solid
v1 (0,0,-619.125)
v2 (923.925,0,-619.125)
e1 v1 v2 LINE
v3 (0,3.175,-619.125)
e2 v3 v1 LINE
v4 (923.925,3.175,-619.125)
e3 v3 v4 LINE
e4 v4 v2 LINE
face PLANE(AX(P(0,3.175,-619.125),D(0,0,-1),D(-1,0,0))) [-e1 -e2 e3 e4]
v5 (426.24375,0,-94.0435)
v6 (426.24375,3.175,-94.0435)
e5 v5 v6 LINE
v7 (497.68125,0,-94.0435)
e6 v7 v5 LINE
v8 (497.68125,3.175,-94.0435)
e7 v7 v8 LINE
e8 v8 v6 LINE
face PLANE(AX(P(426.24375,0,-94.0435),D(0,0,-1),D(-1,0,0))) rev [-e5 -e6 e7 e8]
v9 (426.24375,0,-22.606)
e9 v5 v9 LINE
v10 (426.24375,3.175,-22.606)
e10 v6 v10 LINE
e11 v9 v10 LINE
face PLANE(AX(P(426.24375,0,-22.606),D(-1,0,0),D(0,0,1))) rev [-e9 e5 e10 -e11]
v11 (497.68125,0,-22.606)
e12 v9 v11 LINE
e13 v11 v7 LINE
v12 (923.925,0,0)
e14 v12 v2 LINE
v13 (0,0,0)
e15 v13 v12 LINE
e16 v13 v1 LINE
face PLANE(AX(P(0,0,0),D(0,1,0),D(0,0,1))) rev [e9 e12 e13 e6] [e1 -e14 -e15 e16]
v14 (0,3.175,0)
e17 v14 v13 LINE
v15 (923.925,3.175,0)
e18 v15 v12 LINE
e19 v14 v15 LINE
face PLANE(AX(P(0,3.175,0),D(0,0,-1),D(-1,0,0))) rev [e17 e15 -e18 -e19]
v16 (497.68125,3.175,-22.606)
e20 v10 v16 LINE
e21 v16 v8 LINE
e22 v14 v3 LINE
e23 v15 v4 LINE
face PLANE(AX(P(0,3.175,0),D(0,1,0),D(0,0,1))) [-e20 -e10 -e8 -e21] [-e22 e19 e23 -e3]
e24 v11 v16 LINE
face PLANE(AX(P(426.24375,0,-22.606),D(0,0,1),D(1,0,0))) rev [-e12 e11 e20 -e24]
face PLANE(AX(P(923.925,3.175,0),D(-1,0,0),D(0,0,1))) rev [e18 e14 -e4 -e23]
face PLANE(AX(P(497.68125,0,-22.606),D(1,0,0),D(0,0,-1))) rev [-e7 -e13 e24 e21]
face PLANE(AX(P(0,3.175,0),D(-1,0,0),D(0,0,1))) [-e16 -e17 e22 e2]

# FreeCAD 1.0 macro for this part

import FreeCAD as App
import Part
import Sketcher

V = App.Vector
Q = App.Units.Quantity


def add_polygon(sketch, points):
    """Adds a closed chain of lines whose ends are joined by coincident constraints."""
    first, n = sketch.GeometryCount, len(points)
    for a, b in zip(points, points[1:] + points[:1]):
        sketch.addGeometry(Part.LineSegment(App.Vector(*a, 0), App.Vector(*b, 0)), False)
    for i in range(n):
        sketch.addConstraint(Sketcher.Constraint("Coincident", first + i, 2, first + (i + 1) % n, 1))

doc = App.newDocument("Part")
params = doc.addObject("Spreadsheet::Sheet", "Params")
for row, (alias, value) in enumerate([
    ("sketch1_width", "36.375 in"),
    ("sketch1_height", "24.375 in"),
    ("pad1_length", "0.125 in"),
    ("sketch2_width", "2.8125 in"),
], start=1):
    params.set(f"A{row}", alias)
    params.set(f"B{row}", "=" + value)
    params.setAlias(f"B{row}", alias)

body = doc.addObject("PartDesign::Body", "Body")

# Sketch on XZ plane
sketch1 = body.newObject("Sketcher::SketchObject", "Sketch")
sketch1.AttachmentSupport = (doc.getObject("XZ_Plane"), [""])
sketch1.MapMode = "FlatFace"
add_polygon(sketch1, [(0, -619), (0, 0), (924, 0), (924, -619)])  # lines 0-3
sketch1.addConstraint([
    Sketcher.Constraint("Vertical", 0),
    Sketcher.Constraint("Horizontal", 1),
    Sketcher.Constraint("Vertical", 2),
    Sketcher.Constraint("Horizontal", 3),
    Sketcher.Constraint("Coincident", 0, 2, -1, 1),
    Sketcher.Constraint("DistanceX", 1, 1, 1, 2, Q("36.375 in")),
    Sketcher.Constraint("DistanceY", 0, 1, 0, 2, Q("24.375 in")),
])
sketch1.setExpression("Constraints[9]", "Params.sketch1_width")
sketch1.setExpression("Constraints[10]", "Params.sketch1_height")
pad1 = body.newObject("PartDesign::Pad", "Pad")
pad1.Profile = sketch1
pad1.setExpression("Length", "Params.pad1_length")
pad1.Reversed = True

# Sketch on XZ plane
sketch2 = body.newObject("Sketcher::SketchObject", "Sketch001")
sketch2.AttachmentSupport = (doc.getObject("XZ_Plane"), [""])
sketch2.MapMode = "FlatFace"
sketch2.AttachmentOffset = App.Placement(V(0, 0, -0.125 * 25.4), App.Rotation())
add_polygon(sketch2, [(426, -94), (426, -23), (498, -23), (498, -94)])  # lines 0-3
sketch2.addConstraint([
    Sketcher.Constraint("Vertical", 0),
    Sketcher.Constraint("Horizontal", 1),
    Sketcher.Constraint("Vertical", 2),
    Sketcher.Constraint("Horizontal", 3),
    Sketcher.Constraint("Equal", 3, 0),
    Sketcher.Constraint("DistanceX", 1, 1, 1, 2, Q("2.8125 in")),
    Sketcher.Constraint("DistanceY", 0, 2, -1, 1, Q("0.89 in")),
    Sketcher.Constraint("DistanceX", -1, 1, 0, 2, Q("16.78125 in")),
])
sketch2.setExpression("Constraints[9]", "Params.sketch2_width")
pocket1 = body.newObject("PartDesign::Pocket", "Pocket")
pocket1.Profile = sketch2
pocket1.Type = "ThroughAll"
pocket1.Midplane = True

doc.recompute()
